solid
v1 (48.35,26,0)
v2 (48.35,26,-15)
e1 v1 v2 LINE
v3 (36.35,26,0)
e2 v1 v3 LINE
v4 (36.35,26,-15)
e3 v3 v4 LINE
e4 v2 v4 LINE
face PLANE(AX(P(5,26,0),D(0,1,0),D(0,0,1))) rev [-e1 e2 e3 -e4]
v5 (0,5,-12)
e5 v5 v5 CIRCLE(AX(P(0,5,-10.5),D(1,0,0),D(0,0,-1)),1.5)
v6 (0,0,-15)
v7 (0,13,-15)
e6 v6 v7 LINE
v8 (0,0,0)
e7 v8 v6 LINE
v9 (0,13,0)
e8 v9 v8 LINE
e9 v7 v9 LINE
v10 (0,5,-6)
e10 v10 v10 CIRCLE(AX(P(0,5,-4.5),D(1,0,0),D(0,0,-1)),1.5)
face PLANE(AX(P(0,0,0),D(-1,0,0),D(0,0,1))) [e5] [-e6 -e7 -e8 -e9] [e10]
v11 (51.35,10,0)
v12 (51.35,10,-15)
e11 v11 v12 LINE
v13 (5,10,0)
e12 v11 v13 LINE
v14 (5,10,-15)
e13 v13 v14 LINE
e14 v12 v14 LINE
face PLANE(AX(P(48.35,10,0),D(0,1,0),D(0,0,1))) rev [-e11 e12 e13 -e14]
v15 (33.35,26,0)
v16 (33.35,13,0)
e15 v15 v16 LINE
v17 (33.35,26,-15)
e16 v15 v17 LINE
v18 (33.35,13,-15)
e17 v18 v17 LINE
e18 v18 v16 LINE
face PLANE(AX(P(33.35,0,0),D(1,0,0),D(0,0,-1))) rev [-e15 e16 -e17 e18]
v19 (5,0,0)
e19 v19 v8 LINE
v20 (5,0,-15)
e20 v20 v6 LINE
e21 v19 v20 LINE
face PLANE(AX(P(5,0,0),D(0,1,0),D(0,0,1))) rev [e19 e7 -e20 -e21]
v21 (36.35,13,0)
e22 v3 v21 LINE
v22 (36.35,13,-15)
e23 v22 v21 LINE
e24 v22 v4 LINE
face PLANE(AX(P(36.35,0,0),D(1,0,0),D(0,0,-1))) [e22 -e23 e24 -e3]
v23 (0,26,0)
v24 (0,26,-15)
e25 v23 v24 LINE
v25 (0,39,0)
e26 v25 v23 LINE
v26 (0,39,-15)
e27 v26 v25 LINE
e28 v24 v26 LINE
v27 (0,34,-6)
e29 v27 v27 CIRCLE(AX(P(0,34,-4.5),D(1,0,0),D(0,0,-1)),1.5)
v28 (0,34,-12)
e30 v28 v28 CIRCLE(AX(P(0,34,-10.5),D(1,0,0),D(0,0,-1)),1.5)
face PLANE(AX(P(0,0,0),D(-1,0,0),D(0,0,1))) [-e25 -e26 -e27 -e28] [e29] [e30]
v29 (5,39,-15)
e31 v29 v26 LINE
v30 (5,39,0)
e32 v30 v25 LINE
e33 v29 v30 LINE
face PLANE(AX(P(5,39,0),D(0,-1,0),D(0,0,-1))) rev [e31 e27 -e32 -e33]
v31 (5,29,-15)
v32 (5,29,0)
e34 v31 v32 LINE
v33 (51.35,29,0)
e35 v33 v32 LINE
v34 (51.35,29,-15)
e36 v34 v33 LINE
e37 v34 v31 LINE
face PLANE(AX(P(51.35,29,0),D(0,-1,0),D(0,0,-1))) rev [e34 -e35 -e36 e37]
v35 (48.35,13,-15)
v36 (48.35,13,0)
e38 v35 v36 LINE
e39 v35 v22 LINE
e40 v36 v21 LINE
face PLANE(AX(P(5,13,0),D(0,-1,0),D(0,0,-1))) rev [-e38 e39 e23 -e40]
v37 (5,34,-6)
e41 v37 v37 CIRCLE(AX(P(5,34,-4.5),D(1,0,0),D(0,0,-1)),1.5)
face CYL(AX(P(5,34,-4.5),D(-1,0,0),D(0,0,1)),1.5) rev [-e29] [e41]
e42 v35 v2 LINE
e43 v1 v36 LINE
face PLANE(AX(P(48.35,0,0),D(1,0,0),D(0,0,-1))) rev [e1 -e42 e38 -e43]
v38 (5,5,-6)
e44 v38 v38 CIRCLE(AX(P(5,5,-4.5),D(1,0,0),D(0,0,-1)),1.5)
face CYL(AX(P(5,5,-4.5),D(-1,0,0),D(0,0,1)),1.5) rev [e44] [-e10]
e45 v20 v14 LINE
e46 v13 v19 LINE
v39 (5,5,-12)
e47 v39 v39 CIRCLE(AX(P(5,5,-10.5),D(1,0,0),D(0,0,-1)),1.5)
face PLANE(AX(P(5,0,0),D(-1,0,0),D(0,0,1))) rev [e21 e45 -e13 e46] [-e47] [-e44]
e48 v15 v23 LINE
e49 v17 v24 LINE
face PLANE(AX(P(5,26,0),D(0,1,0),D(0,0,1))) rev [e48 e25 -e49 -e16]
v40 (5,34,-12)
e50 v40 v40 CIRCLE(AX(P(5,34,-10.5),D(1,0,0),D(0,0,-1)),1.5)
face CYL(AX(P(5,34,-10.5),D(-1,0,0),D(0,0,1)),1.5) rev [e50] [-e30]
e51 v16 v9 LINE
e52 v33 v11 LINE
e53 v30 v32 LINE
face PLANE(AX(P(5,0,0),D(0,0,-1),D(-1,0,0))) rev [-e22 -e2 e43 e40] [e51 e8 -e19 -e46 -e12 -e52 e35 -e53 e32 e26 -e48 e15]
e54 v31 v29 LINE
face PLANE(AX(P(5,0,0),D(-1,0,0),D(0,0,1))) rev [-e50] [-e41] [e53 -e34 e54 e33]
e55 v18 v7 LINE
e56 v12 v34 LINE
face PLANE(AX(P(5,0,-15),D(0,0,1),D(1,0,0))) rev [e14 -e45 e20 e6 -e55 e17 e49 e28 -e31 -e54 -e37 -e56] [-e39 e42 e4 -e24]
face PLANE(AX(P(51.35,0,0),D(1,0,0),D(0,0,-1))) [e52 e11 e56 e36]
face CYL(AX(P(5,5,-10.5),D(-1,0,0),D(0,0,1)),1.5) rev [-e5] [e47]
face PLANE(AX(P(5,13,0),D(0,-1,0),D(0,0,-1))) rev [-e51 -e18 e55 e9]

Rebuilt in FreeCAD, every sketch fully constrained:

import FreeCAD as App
import Part
import Sketcher
from FreeCAD import Vector


def add_polygon(sketch, points):
    """Adds a closed chain of lines whose ends are joined by coincident constraints."""
    first, n = sketch.GeometryCount, len(points)
    for a, b in zip(points, points[1:] + points[:1]):
        sketch.addGeometry(Part.LineSegment(App.Vector(*a, 0), App.Vector(*b, 0)), False)
    for i in range(n):
        sketch.addConstraint(Sketcher.Constraint("Coincident", first + i, 2, first + (i + 1) % n, 1))

doc = App.newDocument("Part")
params = doc.addObject("Spreadsheet::Sheet", "Params")
for row, (alias, value) in enumerate([
    ("sketch1_diameter", "3 mm"),
    ("sketch1_width", "13 mm"),
    ("sketch1_height", "15 mm"),
    ("pad1_length", "5 mm"),
    ("sketch2_diameter", "3 mm"),
    ("sketch2_width", "13 mm"),
    ("sketch2_height", "15 mm"),
    ("pad2_length", "5 mm"),
    ("sketch3_width", "3 mm"),
    ("sketch3_height", "15 mm"),
    ("pad3_length", "43.35 mm"),
    ("sketch4_width", "19 mm"),
    ("sketch4_height", "15 mm"),
    ("pad4_length", "3 mm"),
    ("sketch5_width", "19 mm"),
    ("sketch5_height", "15 mm"),
    ("pad5_length", "3 mm"),
], start=1):
    params.set(f"A{row}", alias)
    params.set(f"B{row}", "=" + value)
    params.setAlias(f"B{row}", alias)

body = doc.addObject("PartDesign::Body", "Body")

sketch1 = body.newObject("Sketcher::SketchObject", "Sketch")
sketch1.AttachmentSupport = (doc.getObject("YZ_Plane"), [""])
sketch1.MapMode = "FlatFace"
add_polygon(sketch1, [(13, 0), (0, 0), (0, -15), (13, -15)])
sketch1.addGeometry(Part.Circle(Vector(5, -4.5, 0), Vector(0, 0, 1), 1.5), False)
sketch1.addGeometry(Part.Circle(Vector(5, -10.5, 0), Vector(0, 0, 1), 1.5), False)
sketch1.addConstraint(Sketcher.Constraint("Horizontal", 0))
sketch1.addConstraint(Sketcher.Constraint("Vertical", 1))
sketch1.addConstraint(Sketcher.Constraint("Horizontal", 2))
sketch1.addConstraint(Sketcher.Constraint("Vertical", 3))
sketch1.addConstraint(Sketcher.Constraint("Coincident", 0, 2, -1, 1))
sketch1.addConstraint(Sketcher.Constraint("Equal", 4, 5))
sketch1.addConstraint(Sketcher.Constraint("Vertical", 4, 3, 5, 3))
sketch1.addConstraint(Sketcher.Constraint("Diameter", 4, 3.0))
sketch1.addConstraint(Sketcher.Constraint("DistanceX", 0, 2, 0, 1, 13.0))
sketch1.addConstraint(Sketcher.Constraint("DistanceY", 1, 2, 1, 1, 15.0))
sketch1.addConstraint(Sketcher.Constraint("DistanceX", -1, 1, 4, 3, 5.0))
sketch1.addConstraint(Sketcher.Constraint("DistanceY", 5, 3, 4, 3, 6.0))
sketch1.addConstraint(Sketcher.Constraint("DistanceY", 4, 3, -1, 1, 4.5))
sketch1.setExpression("Constraints[11]", "Params.sketch1_diameter")
sketch1.setExpression("Constraints[12]", "Params.sketch1_width")
sketch1.setExpression("Constraints[13]", "Params.sketch1_height")
pad1 = body.newObject("PartDesign::Pad", "Pad")
pad1.Profile = sketch1
pad1.setExpression("Length", "Params.pad1_length")
body2 = doc.addObject("PartDesign::Body", "Body001")

sketch2 = body2.newObject("Sketcher::SketchObject", "Sketch001")
sketch2.AttachmentSupport = (doc.getObject("YZ_Plane001"), [""])
sketch2.MapMode = "FlatFace"
add_polygon(sketch2, [(39, 0), (26, 0), (26, -15), (39, -15)])
sketch2.addGeometry(Part.Circle(Vector(34, -4.5, 0), Vector(0, 0, 1), 1.5), False)
sketch2.addGeometry(Part.Circle(Vector(34, -10.5, 0), Vector(0, 0, 1), 1.5), False)
sketch2.addConstraint(Sketcher.Constraint("Horizontal", 0))
sketch2.addConstraint(Sketcher.Constraint("Vertical", 1))
sketch2.addConstraint(Sketcher.Constraint("Horizontal", 2))
sketch2.addConstraint(Sketcher.Constraint("Vertical", 3))
sketch2.addConstraint(Sketcher.Constraint("Equal", 4, 5))
sketch2.addConstraint(Sketcher.Constraint("PointOnObject", 0, 2, -1))
sketch2.addConstraint(Sketcher.Constraint("Vertical", 4, 3, 5, 3))
sketch2.addConstraint(Sketcher.Constraint("Diameter", 4, 3.0))
sketch2.addConstraint(Sketcher.Constraint("DistanceX", 0, 2, 0, 1, 13.0))
sketch2.addConstraint(Sketcher.Constraint("DistanceY", 1, 2, 1, 1, 15.0))
sketch2.addConstraint(Sketcher.Constraint("DistanceX", -1, 1, 4, 3, 34.0))
sketch2.addConstraint(Sketcher.Constraint("DistanceX", -1, 1, 0, 2, 26.0))
sketch2.addConstraint(Sketcher.Constraint("DistanceY", 5, 3, 4, 3, 6.0))
sketch2.addConstraint(Sketcher.Constraint("DistanceY", 4, 3, -1, 1, 4.5))
sketch2.setExpression("Constraints[11]", "Params.sketch2_diameter")
sketch2.setExpression("Constraints[12]", "Params.sketch2_width")
sketch2.setExpression("Constraints[13]", "Params.sketch2_height")
pad2 = body2.newObject("PartDesign::Pad", "Pad001")
pad2.Profile = sketch2
pad2.setExpression("Length", "Params.pad2_length")
body.AllowCompound = True
doc.recompute()

boolean = body.newObject("PartDesign::Boolean", "Boolean")
boolean.Type = "Fuse"
boolean.addObjects([body2])

sketch3 = body.newObject("Sketcher::SketchObject", "Sketch002")
sketch3.AttachmentSupport = (doc.getObject("YZ_Plane"), [""])
sketch3.MapMode = "FlatFace"
sketch3.AttachmentOffset = App.Placement(Vector(0, 0, 5), App.Rotation())
add_polygon(sketch3, [(29, 0), (26, 0), (26, -15), (29, -15)])
add_polygon(sketch3, [(13, 0), (10, 0), (10, -15), (13, -15)])
sketch3.addConstraint(Sketcher.Constraint("Horizontal", 0))
sketch3.addConstraint(Sketcher.Constraint("Vertical", 1))
sketch3.addConstraint(Sketcher.Constraint("Horizontal", 2))
sketch3.addConstraint(Sketcher.Constraint("Vertical", 3))
sketch3.addConstraint(Sketcher.Constraint("Horizontal", 4))
sketch3.addConstraint(Sketcher.Constraint("Vertical", 5))
sketch3.addConstraint(Sketcher.Constraint("Horizontal", 6))
sketch3.addConstraint(Sketcher.Constraint("Vertical", 7))
sketch3.addConstraint(Sketcher.Constraint("PointOnObject", 0, 2, -1))
sketch3.addConstraint(Sketcher.Constraint("PointOnObject", 4, 2, -1))
sketch3.addConstraint(Sketcher.Constraint("Horizontal", 2, 2, 5, 2))
sketch3.addConstraint(Sketcher.Constraint("Equal", 2, 4))
sketch3.addConstraint(Sketcher.Constraint("DistanceX", 0, 2, 0, 1, 3.0))
sketch3.addConstraint(Sketcher.Constraint("DistanceY", 1, 2, 1, 1, 15.0))
sketch3.addConstraint(Sketcher.Constraint("DistanceX", -1, 1, 0, 2, 26.0))
sketch3.addConstraint(Sketcher.Constraint("DistanceX", -1, 1, 4, 2, 10.0))
sketch3.setExpression("Constraints[20]", "Params.sketch3_width")
sketch3.setExpression("Constraints[21]", "Params.sketch3_height")
pad3 = body.newObject("PartDesign::Pad", "Pad002")
pad3.Profile = sketch3
pad3.setExpression("Length", "Params.pad3_length")

sketch4 = body.newObject("Sketcher::SketchObject", "Sketch003")
sketch4.AttachmentSupport = (doc.getObject("YZ_Plane"), [""])
sketch4.MapMode = "FlatFace"
sketch4.AttachmentOffset = App.Placement(Vector(0, 0, 48.35), App.Rotation())
add_polygon(sketch4, [(29, 0), (10, 0), (10, -15), (29, -15)])
sketch4.addConstraint(Sketcher.Constraint("Horizontal", 0))
sketch4.addConstraint(Sketcher.Constraint("Vertical", 1))
sketch4.addConstraint(Sketcher.Constraint("Horizontal", 2))
sketch4.addConstraint(Sketcher.Constraint("Vertical", 3))
sketch4.addConstraint(Sketcher.Constraint("PointOnObject", 0, 2, -1))
sketch4.addConstraint(Sketcher.Constraint("DistanceX", 0, 2, 0, 1, 19.0))
sketch4.addConstraint(Sketcher.Constraint("DistanceY", 1, 2, 1, 1, 15.0))
sketch4.addConstraint(Sketcher.Constraint("DistanceX", -1, 1, 0, 2, 10.0))
sketch4.setExpression("Constraints[9]", "Params.sketch4_width")
sketch4.setExpression("Constraints[10]", "Params.sketch4_height")
pad4 = body.newObject("PartDesign::Pad", "Pad003")
pad4.Profile = sketch4
pad4.setExpression("Length", "Params.pad4_length")

sketch5 = body.newObject("Sketcher::SketchObject", "Sketch004")
sketch5.AttachmentSupport = (doc.getObject("YZ_Plane"), [""])
sketch5.MapMode = "FlatFace"
sketch5.AttachmentOffset = App.Placement(Vector(0, 0, 36.35), App.Rotation())
add_polygon(sketch5, [(29, 0), (10, 0), (10, -15), (29, -15)])
sketch5.addConstraint(Sketcher.Constraint("Horizontal", 0))
sketch5.addConstraint(Sketcher.Constraint("Vertical", 1))
sketch5.addConstraint(Sketcher.Constraint("Horizontal", 2))
sketch5.addConstraint(Sketcher.Constraint("Vertical", 3))
sketch5.addConstraint(Sketcher.Constraint("PointOnObject", 0, 2, -1))
sketch5.addConstraint(Sketcher.Constraint("DistanceX", 0, 2, 0, 1, 19.0))
sketch5.addConstraint(Sketcher.Constraint("DistanceY", 1, 2, 1, 1, 15.0))
sketch5.addConstraint(Sketcher.Constraint("DistanceX", -1, 1, 0, 2, 10.0))
sketch5.setExpression("Constraints[9]", "Params.sketch5_width")
sketch5.setExpression("Constraints[10]", "Params.sketch5_height")
pad5 = body.newObject("PartDesign::Pad", "Pad004")
pad5.Profile = sketch5
pad5.setExpression("Length", "Params.pad5_length")
pad5.Reversed = True

doc.recompute()
